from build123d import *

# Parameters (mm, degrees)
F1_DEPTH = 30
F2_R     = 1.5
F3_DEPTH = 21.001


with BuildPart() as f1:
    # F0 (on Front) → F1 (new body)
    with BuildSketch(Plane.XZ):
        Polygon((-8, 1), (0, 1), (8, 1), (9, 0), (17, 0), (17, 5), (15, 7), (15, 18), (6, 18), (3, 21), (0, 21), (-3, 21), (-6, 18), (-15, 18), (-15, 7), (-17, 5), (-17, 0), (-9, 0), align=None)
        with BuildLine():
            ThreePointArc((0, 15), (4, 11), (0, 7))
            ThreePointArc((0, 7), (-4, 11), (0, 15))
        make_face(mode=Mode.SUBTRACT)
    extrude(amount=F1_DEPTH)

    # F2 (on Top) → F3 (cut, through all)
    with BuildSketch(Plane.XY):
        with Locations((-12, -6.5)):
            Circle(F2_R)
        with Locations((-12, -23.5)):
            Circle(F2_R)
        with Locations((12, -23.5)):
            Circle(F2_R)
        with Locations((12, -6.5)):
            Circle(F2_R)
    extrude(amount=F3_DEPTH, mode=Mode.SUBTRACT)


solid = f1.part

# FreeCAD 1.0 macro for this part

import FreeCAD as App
import Part
import Sketcher
Q = App.Units.Quantity

doc = App.newDocument("Part")
body = doc.addObject("PartDesign::Body", "Body")

sketch1 = doc.addObject("Sketcher::SketchObject", "Sketch")
body.addObject(sketch1)
sketch1.AttachmentSupport = (doc.XZ_Plane, [""])
sketch1.MapMode = "FlatFace"
sketch1.addGeometry(Part.LineSegment(App.Vector(-8, 1, 0), App.Vector(8, 1, 0)), False)
sketch1.addGeometry(Part.LineSegment(App.Vector(8, 1, 0), App.Vector(9, 0, 0)), False)
sketch1.addGeometry(Part.LineSegment(App.Vector(9, 0, 0), App.Vector(17, 0, 0)), False)
sketch1.addGeometry(Part.LineSegment(App.Vector(17, 0, 0), App.Vector(17, 5, 0)), False)
sketch1.addGeometry(Part.LineSegment(App.Vector(17, 5, 0), App.Vector(15, 7, 0)), False)
sketch1.addGeometry(Part.LineSegment(App.Vector(15, 7, 0), App.Vector(15, 18, 0)), False)
sketch1.addGeometry(Part.LineSegment(App.Vector(15, 18, 0), App.Vector(6, 18, 0)), False)
sketch1.addGeometry(Part.LineSegment(App.Vector(6, 18, 0), App.Vector(3, 21, 0)), False)
sketch1.addGeometry(Part.LineSegment(App.Vector(3, 21, 0), App.Vector(-3, 21, 0)), False)
sketch1.addGeometry(Part.LineSegment(App.Vector(-3, 21, 0), App.Vector(-6, 18, 0)), False)
sketch1.addGeometry(Part.LineSegment(App.Vector(-6, 18, 0), App.Vector(-15, 18, 0)), False)
sketch1.addGeometry(Part.LineSegment(App.Vector(-15, 18, 0), App.Vector(-15, 7, 0)), False)
sketch1.addGeometry(Part.LineSegment(App.Vector(-15, 7, 0), App.Vector(-17, 5, 0)), False)
sketch1.addGeometry(Part.LineSegment(App.Vector(-17, 5, 0), App.Vector(-17, 0, 0)), False)
sketch1.addGeometry(Part.LineSegment(App.Vector(-17, 0, 0), App.Vector(-9, 0, 0)), False)
sketch1.addGeometry(Part.LineSegment(App.Vector(-9, 0, 0), App.Vector(-8, 1, 0)), False)
sketch1.addGeometry(Part.Circle(App.Vector(0, 11, 0), App.Vector(0, 0, 1), 4), False)
sketch1.addConstraint(Sketcher.Constraint("Coincident", 0, 2, 1, 1))
sketch1.addConstraint(Sketcher.Constraint("Coincident", 1, 2, 2, 1))
sketch1.addConstraint(Sketcher.Constraint("Coincident", 2, 2, 3, 1))
sketch1.addConstraint(Sketcher.Constraint("Coincident", 3, 2, 4, 1))
sketch1.addConstraint(Sketcher.Constraint("Coincident", 4, 2, 5, 1))
sketch1.addConstraint(Sketcher.Constraint("Coincident", 5, 2, 6, 1))
sketch1.addConstraint(Sketcher.Constraint("Coincident", 6, 2, 7, 1))
sketch1.addConstraint(Sketcher.Constraint("Coincident", 7, 2, 8, 1))
sketch1.addConstraint(Sketcher.Constraint("Coincident", 8, 2, 9, 1))
sketch1.addConstraint(Sketcher.Constraint("Coincident", 9, 2, 10, 1))
sketch1.addConstraint(Sketcher.Constraint("Coincident", 10, 2, 11, 1))
sketch1.addConstraint(Sketcher.Constraint("Coincident", 11, 2, 12, 1))
sketch1.addConstraint(Sketcher.Constraint("Coincident", 12, 2, 13, 1))
sketch1.addConstraint(Sketcher.Constraint("Coincident", 13, 2, 14, 1))
sketch1.addConstraint(Sketcher.Constraint("Coincident", 14, 2, 15, 1))
sketch1.addConstraint(Sketcher.Constraint("Coincident", 15, 2, 0, 1))
sketch1.addConstraint(Sketcher.Constraint("Horizontal", 0))
sketch1.addConstraint(Sketcher.Constraint("Horizontal", 2))
sketch1.addConstraint(Sketcher.Constraint("Vertical", 3))
sketch1.addConstraint(Sketcher.Constraint("Vertical", 5))
sketch1.addConstraint(Sketcher.Constraint("Horizontal", 6))
sketch1.addConstraint(Sketcher.Constraint("Horizontal", 8))
sketch1.addConstraint(Sketcher.Constraint("Horizontal", 10))
sketch1.addConstraint(Sketcher.Constraint("Vertical", 11))
sketch1.addConstraint(Sketcher.Constraint("Vertical", 13))
sketch1.addConstraint(Sketcher.Constraint("Horizontal", 14))
sketch1.addConstraint(Sketcher.Constraint("Symmetric", 2, 2, 13, 2, -1, 1))
sketch1.addConstraint(Sketcher.Constraint("Symmetric", 6, 2, 9, 2, -2))
sketch1.addConstraint(Sketcher.Constraint("Symmetric", 4, 2, 11, 2, -2))
sketch1.addConstraint(Sketcher.Constraint("Symmetric", 1, 2, 14, 2, -2))
sketch1.addConstraint(Sketcher.Constraint("PointOnObject", 16, 3, -2))
sketch1.addConstraint(Sketcher.Constraint("Parallel", 1, 4))
sketch1.addConstraint(Sketcher.Constraint("Parallel", 4, 7))
sketch1.addConstraint(Sketcher.Constraint("Perpendicular", 7, 9))
sketch1.addConstraint(Sketcher.Constraint("Parallel", 9, 12))
sketch1.addConstraint(Sketcher.Constraint("Parallel", 12, 15))
sketch1.addConstraint(Sketcher.Constraint("Horizontal", 3, 2, 12, 2))
sketch1.addConstraint(Sketcher.Constraint("Diameter", 16, Q("8 mm")))
sketch1.addConstraint(Sketcher.Constraint("DistanceX", 0, 1, 0, 2, Q("16 mm")))
sketch1.addConstraint(Sketcher.Constraint("DistanceX", 2, 1, 2, 2, Q("8 mm")))
sketch1.addConstraint(Sketcher.Constraint("DistanceX", 6, 2, 6, 1, Q("9 mm")))
sketch1.addConstraint(Sketcher.Constraint("DistanceX", 8, 2, 8, 1, Q("6 mm")))
sketch1.addConstraint(Sketcher.Constraint("DistanceY", 3, 1, 3, 2, Q("5 mm")))
sketch1.addConstraint(Sketcher.Constraint("DistanceY", 5, 1, 5, 2, Q("11 mm")))
sketch1.addConstraint(Sketcher.Constraint("DistanceY", -1, 1, 16, 3, Q("11 mm")))
sketch1.addConstraint(Sketcher.Constraint("DistanceY", -1, 1, 0, 2, Q("1 mm")))
sketch1.addConstraint(Sketcher.Constraint("DistanceX", -1, 1, 4, 2, Q("15 mm")))
pad1 = doc.addObject("PartDesign::Pad", "Pad")
body.addObject(pad1)
pad1.Profile = sketch1
pad1.Length = 30

sketch2 = doc.addObject("Sketcher::SketchObject", "Sketch001")
body.addObject(sketch2)
sketch2.AttachmentSupport = (doc.XY_Plane, [""])
sketch2.MapMode = "FlatFace"
sketch2.addGeometry(Part.Circle(App.Vector(-12, -6.5, 0), App.Vector(0, 0, 1), 1.5), False)
sketch2.addGeometry(Part.Circle(App.Vector(-12, -23.5, 0), App.Vector(0, 0, 1), 1.5), False)
sketch2.addGeometry(Part.Circle(App.Vector(12, -23.5, 0), App.Vector(0, 0, 1), 1.5), False)
sketch2.addGeometry(Part.Circle(App.Vector(12, -6.5, 0), App.Vector(0, 0, 1), 1.5), False)
sketch2.addConstraint(Sketcher.Constraint("Equal", 0, 1))
sketch2.addConstraint(Sketcher.Constraint("Equal", 1, 2))
sketch2.addConstraint(Sketcher.Constraint("Equal", 2, 3))
sketch2.addConstraint(Sketcher.Constraint("Symmetric", 1, 3, 2, 3, -2))
sketch2.addConstraint(Sketcher.Constraint("Symmetric", 0, 3, 3, 3, -2))
sketch2.addConstraint(Sketcher.Constraint("Vertical", 0, 3, 1, 3))
sketch2.addConstraint(Sketcher.Constraint("Diameter", 0, Q("3 mm")))
sketch2.addConstraint(Sketcher.Constraint("DistanceX", 0, 3, -1, 1, Q("12 mm")))
sketch2.addConstraint(Sketcher.Constraint("DistanceY", 1, 3, 0, 3, Q("17 mm")))
sketch2.addConstraint(Sketcher.Constraint("DistanceY", 0, 3, -1, 1, Q("6.5 mm")))
pocket1 = doc.addObject("PartDesign::Pocket", "Pocket")
body.addObject(pocket1)
pocket1.Profile = sketch2
pocket1.Type = "ThroughAll"
pocket1.Reversed = True

doc.recompute()
